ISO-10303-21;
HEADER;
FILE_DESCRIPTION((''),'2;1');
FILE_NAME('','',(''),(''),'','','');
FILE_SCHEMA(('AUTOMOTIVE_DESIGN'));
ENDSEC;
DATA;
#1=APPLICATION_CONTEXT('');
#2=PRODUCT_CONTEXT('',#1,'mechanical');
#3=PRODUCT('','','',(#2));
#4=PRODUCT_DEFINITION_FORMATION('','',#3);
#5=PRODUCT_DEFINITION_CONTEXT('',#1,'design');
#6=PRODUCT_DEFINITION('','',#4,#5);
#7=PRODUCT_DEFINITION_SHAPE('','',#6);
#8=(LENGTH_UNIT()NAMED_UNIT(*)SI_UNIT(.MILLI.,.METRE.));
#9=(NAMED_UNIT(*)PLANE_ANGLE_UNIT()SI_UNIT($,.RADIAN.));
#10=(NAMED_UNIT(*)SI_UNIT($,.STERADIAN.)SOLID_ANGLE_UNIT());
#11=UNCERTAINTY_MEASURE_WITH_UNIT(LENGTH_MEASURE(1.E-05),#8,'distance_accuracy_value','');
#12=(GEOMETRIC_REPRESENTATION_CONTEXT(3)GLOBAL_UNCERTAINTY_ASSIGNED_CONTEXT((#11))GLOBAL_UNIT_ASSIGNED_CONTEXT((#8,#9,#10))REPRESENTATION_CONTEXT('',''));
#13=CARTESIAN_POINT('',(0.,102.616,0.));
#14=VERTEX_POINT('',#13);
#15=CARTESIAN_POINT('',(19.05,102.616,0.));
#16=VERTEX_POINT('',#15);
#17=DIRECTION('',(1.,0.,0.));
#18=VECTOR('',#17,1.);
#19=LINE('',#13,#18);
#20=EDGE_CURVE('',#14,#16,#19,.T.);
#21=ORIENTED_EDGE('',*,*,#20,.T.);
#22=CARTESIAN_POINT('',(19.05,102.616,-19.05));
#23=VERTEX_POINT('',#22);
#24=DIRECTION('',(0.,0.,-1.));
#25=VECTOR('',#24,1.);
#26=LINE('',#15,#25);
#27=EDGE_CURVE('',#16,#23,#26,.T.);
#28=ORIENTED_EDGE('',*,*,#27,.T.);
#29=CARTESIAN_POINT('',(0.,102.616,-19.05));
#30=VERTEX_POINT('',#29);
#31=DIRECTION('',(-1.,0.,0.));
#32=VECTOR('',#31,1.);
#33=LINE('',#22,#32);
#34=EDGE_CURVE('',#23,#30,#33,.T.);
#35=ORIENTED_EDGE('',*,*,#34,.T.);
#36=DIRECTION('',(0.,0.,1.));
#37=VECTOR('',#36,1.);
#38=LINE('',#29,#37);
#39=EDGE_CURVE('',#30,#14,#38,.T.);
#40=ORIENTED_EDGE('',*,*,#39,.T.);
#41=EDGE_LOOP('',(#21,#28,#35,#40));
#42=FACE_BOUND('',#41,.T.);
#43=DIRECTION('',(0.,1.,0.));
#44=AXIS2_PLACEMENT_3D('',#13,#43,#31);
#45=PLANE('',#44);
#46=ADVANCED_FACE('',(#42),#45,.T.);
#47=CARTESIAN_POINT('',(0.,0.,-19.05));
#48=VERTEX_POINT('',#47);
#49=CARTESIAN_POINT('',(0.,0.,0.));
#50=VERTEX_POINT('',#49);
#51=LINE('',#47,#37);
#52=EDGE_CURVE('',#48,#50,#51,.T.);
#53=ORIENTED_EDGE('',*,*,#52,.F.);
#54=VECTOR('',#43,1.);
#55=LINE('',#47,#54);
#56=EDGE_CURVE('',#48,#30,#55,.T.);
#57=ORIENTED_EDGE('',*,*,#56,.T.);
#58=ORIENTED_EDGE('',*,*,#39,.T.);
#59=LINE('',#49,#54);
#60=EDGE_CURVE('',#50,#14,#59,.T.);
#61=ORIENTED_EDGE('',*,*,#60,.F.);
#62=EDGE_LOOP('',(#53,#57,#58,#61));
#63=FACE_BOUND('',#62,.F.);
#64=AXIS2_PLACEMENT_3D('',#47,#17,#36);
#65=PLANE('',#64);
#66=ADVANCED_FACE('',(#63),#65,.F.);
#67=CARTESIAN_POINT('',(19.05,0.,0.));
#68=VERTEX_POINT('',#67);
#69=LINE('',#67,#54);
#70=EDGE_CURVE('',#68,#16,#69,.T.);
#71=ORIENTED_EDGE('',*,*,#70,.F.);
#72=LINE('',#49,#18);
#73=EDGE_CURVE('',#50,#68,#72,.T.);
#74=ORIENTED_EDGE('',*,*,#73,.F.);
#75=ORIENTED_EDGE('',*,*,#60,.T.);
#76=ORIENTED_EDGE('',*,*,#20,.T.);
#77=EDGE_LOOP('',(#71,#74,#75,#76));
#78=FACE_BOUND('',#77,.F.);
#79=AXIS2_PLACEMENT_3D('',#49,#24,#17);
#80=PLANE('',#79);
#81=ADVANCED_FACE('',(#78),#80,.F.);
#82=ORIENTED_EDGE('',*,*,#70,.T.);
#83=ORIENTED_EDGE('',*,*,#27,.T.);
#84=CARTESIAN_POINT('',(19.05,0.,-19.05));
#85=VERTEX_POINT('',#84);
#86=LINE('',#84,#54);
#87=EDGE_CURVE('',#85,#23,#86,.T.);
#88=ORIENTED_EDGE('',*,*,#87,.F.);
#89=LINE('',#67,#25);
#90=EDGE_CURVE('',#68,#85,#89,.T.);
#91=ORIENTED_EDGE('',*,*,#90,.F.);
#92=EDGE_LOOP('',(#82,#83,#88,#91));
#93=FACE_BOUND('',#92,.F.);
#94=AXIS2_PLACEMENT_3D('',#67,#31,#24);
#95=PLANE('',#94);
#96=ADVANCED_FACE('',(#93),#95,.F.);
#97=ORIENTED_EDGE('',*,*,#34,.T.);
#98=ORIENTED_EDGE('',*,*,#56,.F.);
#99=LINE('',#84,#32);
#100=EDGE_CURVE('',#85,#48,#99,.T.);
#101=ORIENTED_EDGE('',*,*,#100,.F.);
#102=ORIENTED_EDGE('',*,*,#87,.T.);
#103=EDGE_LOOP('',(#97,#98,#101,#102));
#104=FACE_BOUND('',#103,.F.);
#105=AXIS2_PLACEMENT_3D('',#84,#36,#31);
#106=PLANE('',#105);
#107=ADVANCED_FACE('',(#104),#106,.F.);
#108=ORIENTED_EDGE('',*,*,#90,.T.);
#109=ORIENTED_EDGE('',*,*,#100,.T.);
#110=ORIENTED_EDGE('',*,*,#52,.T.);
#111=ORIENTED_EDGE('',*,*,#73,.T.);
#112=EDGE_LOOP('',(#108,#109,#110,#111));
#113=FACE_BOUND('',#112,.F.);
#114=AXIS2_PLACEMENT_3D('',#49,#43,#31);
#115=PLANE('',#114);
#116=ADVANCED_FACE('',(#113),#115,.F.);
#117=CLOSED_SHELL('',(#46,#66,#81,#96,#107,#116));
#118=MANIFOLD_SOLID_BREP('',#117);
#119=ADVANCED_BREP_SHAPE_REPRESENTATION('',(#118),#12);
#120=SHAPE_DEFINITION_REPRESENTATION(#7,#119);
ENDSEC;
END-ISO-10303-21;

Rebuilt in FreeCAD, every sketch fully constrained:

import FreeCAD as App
import Part
import Sketcher
from FreeCAD import Vector
Q = App.Units.Quantity


def add_polygon(sketch, points):
    """Adds a closed chain of lines whose ends are joined by coincident constraints."""
    first, n = sketch.GeometryCount, len(points)
    for a, b in zip(points, points[1:] + points[:1]):
        sketch.addGeometry(Part.LineSegment(App.Vector(*a, 0), App.Vector(*b, 0)), False)
    for i in range(n):
        sketch.addConstraint(Sketcher.Constraint("Coincident", first + i, 2, first + (i + 1) % n, 1))

doc = App.newDocument("Part")
body = doc.addObject("PartDesign::Body", "Body")

sketch1 = body.newObject("Sketcher::SketchObject", "Sketch")
sketch1.AttachmentSupport = (doc.getObject("XZ_Plane"), [""])
sketch1.MapMode = "FlatFace"
add_polygon(sketch1, [(0, -19), (0, 0), (19, 0), (19, -19)])
sketch1.addConstraint([
    Sketcher.Constraint("Vertical", 0),
    Sketcher.Constraint("Horizontal", 1),
    Sketcher.Constraint("Vertical", 2),
    Sketcher.Constraint("Horizontal", 3),
    Sketcher.Constraint("Coincident", 0, 2, -1, 1),
    Sketcher.Constraint("Equal", 3, 0),
    Sketcher.Constraint("DistanceX", 1, 1, 1, 2, Q("0.75 in")),
])
pad1 = body.newObject("PartDesign::Pad", "Pad")
pad1.Profile = sketch1
pad1.Length = Q("4.04 in")
pad1.Reversed = True

doc.recompute()
